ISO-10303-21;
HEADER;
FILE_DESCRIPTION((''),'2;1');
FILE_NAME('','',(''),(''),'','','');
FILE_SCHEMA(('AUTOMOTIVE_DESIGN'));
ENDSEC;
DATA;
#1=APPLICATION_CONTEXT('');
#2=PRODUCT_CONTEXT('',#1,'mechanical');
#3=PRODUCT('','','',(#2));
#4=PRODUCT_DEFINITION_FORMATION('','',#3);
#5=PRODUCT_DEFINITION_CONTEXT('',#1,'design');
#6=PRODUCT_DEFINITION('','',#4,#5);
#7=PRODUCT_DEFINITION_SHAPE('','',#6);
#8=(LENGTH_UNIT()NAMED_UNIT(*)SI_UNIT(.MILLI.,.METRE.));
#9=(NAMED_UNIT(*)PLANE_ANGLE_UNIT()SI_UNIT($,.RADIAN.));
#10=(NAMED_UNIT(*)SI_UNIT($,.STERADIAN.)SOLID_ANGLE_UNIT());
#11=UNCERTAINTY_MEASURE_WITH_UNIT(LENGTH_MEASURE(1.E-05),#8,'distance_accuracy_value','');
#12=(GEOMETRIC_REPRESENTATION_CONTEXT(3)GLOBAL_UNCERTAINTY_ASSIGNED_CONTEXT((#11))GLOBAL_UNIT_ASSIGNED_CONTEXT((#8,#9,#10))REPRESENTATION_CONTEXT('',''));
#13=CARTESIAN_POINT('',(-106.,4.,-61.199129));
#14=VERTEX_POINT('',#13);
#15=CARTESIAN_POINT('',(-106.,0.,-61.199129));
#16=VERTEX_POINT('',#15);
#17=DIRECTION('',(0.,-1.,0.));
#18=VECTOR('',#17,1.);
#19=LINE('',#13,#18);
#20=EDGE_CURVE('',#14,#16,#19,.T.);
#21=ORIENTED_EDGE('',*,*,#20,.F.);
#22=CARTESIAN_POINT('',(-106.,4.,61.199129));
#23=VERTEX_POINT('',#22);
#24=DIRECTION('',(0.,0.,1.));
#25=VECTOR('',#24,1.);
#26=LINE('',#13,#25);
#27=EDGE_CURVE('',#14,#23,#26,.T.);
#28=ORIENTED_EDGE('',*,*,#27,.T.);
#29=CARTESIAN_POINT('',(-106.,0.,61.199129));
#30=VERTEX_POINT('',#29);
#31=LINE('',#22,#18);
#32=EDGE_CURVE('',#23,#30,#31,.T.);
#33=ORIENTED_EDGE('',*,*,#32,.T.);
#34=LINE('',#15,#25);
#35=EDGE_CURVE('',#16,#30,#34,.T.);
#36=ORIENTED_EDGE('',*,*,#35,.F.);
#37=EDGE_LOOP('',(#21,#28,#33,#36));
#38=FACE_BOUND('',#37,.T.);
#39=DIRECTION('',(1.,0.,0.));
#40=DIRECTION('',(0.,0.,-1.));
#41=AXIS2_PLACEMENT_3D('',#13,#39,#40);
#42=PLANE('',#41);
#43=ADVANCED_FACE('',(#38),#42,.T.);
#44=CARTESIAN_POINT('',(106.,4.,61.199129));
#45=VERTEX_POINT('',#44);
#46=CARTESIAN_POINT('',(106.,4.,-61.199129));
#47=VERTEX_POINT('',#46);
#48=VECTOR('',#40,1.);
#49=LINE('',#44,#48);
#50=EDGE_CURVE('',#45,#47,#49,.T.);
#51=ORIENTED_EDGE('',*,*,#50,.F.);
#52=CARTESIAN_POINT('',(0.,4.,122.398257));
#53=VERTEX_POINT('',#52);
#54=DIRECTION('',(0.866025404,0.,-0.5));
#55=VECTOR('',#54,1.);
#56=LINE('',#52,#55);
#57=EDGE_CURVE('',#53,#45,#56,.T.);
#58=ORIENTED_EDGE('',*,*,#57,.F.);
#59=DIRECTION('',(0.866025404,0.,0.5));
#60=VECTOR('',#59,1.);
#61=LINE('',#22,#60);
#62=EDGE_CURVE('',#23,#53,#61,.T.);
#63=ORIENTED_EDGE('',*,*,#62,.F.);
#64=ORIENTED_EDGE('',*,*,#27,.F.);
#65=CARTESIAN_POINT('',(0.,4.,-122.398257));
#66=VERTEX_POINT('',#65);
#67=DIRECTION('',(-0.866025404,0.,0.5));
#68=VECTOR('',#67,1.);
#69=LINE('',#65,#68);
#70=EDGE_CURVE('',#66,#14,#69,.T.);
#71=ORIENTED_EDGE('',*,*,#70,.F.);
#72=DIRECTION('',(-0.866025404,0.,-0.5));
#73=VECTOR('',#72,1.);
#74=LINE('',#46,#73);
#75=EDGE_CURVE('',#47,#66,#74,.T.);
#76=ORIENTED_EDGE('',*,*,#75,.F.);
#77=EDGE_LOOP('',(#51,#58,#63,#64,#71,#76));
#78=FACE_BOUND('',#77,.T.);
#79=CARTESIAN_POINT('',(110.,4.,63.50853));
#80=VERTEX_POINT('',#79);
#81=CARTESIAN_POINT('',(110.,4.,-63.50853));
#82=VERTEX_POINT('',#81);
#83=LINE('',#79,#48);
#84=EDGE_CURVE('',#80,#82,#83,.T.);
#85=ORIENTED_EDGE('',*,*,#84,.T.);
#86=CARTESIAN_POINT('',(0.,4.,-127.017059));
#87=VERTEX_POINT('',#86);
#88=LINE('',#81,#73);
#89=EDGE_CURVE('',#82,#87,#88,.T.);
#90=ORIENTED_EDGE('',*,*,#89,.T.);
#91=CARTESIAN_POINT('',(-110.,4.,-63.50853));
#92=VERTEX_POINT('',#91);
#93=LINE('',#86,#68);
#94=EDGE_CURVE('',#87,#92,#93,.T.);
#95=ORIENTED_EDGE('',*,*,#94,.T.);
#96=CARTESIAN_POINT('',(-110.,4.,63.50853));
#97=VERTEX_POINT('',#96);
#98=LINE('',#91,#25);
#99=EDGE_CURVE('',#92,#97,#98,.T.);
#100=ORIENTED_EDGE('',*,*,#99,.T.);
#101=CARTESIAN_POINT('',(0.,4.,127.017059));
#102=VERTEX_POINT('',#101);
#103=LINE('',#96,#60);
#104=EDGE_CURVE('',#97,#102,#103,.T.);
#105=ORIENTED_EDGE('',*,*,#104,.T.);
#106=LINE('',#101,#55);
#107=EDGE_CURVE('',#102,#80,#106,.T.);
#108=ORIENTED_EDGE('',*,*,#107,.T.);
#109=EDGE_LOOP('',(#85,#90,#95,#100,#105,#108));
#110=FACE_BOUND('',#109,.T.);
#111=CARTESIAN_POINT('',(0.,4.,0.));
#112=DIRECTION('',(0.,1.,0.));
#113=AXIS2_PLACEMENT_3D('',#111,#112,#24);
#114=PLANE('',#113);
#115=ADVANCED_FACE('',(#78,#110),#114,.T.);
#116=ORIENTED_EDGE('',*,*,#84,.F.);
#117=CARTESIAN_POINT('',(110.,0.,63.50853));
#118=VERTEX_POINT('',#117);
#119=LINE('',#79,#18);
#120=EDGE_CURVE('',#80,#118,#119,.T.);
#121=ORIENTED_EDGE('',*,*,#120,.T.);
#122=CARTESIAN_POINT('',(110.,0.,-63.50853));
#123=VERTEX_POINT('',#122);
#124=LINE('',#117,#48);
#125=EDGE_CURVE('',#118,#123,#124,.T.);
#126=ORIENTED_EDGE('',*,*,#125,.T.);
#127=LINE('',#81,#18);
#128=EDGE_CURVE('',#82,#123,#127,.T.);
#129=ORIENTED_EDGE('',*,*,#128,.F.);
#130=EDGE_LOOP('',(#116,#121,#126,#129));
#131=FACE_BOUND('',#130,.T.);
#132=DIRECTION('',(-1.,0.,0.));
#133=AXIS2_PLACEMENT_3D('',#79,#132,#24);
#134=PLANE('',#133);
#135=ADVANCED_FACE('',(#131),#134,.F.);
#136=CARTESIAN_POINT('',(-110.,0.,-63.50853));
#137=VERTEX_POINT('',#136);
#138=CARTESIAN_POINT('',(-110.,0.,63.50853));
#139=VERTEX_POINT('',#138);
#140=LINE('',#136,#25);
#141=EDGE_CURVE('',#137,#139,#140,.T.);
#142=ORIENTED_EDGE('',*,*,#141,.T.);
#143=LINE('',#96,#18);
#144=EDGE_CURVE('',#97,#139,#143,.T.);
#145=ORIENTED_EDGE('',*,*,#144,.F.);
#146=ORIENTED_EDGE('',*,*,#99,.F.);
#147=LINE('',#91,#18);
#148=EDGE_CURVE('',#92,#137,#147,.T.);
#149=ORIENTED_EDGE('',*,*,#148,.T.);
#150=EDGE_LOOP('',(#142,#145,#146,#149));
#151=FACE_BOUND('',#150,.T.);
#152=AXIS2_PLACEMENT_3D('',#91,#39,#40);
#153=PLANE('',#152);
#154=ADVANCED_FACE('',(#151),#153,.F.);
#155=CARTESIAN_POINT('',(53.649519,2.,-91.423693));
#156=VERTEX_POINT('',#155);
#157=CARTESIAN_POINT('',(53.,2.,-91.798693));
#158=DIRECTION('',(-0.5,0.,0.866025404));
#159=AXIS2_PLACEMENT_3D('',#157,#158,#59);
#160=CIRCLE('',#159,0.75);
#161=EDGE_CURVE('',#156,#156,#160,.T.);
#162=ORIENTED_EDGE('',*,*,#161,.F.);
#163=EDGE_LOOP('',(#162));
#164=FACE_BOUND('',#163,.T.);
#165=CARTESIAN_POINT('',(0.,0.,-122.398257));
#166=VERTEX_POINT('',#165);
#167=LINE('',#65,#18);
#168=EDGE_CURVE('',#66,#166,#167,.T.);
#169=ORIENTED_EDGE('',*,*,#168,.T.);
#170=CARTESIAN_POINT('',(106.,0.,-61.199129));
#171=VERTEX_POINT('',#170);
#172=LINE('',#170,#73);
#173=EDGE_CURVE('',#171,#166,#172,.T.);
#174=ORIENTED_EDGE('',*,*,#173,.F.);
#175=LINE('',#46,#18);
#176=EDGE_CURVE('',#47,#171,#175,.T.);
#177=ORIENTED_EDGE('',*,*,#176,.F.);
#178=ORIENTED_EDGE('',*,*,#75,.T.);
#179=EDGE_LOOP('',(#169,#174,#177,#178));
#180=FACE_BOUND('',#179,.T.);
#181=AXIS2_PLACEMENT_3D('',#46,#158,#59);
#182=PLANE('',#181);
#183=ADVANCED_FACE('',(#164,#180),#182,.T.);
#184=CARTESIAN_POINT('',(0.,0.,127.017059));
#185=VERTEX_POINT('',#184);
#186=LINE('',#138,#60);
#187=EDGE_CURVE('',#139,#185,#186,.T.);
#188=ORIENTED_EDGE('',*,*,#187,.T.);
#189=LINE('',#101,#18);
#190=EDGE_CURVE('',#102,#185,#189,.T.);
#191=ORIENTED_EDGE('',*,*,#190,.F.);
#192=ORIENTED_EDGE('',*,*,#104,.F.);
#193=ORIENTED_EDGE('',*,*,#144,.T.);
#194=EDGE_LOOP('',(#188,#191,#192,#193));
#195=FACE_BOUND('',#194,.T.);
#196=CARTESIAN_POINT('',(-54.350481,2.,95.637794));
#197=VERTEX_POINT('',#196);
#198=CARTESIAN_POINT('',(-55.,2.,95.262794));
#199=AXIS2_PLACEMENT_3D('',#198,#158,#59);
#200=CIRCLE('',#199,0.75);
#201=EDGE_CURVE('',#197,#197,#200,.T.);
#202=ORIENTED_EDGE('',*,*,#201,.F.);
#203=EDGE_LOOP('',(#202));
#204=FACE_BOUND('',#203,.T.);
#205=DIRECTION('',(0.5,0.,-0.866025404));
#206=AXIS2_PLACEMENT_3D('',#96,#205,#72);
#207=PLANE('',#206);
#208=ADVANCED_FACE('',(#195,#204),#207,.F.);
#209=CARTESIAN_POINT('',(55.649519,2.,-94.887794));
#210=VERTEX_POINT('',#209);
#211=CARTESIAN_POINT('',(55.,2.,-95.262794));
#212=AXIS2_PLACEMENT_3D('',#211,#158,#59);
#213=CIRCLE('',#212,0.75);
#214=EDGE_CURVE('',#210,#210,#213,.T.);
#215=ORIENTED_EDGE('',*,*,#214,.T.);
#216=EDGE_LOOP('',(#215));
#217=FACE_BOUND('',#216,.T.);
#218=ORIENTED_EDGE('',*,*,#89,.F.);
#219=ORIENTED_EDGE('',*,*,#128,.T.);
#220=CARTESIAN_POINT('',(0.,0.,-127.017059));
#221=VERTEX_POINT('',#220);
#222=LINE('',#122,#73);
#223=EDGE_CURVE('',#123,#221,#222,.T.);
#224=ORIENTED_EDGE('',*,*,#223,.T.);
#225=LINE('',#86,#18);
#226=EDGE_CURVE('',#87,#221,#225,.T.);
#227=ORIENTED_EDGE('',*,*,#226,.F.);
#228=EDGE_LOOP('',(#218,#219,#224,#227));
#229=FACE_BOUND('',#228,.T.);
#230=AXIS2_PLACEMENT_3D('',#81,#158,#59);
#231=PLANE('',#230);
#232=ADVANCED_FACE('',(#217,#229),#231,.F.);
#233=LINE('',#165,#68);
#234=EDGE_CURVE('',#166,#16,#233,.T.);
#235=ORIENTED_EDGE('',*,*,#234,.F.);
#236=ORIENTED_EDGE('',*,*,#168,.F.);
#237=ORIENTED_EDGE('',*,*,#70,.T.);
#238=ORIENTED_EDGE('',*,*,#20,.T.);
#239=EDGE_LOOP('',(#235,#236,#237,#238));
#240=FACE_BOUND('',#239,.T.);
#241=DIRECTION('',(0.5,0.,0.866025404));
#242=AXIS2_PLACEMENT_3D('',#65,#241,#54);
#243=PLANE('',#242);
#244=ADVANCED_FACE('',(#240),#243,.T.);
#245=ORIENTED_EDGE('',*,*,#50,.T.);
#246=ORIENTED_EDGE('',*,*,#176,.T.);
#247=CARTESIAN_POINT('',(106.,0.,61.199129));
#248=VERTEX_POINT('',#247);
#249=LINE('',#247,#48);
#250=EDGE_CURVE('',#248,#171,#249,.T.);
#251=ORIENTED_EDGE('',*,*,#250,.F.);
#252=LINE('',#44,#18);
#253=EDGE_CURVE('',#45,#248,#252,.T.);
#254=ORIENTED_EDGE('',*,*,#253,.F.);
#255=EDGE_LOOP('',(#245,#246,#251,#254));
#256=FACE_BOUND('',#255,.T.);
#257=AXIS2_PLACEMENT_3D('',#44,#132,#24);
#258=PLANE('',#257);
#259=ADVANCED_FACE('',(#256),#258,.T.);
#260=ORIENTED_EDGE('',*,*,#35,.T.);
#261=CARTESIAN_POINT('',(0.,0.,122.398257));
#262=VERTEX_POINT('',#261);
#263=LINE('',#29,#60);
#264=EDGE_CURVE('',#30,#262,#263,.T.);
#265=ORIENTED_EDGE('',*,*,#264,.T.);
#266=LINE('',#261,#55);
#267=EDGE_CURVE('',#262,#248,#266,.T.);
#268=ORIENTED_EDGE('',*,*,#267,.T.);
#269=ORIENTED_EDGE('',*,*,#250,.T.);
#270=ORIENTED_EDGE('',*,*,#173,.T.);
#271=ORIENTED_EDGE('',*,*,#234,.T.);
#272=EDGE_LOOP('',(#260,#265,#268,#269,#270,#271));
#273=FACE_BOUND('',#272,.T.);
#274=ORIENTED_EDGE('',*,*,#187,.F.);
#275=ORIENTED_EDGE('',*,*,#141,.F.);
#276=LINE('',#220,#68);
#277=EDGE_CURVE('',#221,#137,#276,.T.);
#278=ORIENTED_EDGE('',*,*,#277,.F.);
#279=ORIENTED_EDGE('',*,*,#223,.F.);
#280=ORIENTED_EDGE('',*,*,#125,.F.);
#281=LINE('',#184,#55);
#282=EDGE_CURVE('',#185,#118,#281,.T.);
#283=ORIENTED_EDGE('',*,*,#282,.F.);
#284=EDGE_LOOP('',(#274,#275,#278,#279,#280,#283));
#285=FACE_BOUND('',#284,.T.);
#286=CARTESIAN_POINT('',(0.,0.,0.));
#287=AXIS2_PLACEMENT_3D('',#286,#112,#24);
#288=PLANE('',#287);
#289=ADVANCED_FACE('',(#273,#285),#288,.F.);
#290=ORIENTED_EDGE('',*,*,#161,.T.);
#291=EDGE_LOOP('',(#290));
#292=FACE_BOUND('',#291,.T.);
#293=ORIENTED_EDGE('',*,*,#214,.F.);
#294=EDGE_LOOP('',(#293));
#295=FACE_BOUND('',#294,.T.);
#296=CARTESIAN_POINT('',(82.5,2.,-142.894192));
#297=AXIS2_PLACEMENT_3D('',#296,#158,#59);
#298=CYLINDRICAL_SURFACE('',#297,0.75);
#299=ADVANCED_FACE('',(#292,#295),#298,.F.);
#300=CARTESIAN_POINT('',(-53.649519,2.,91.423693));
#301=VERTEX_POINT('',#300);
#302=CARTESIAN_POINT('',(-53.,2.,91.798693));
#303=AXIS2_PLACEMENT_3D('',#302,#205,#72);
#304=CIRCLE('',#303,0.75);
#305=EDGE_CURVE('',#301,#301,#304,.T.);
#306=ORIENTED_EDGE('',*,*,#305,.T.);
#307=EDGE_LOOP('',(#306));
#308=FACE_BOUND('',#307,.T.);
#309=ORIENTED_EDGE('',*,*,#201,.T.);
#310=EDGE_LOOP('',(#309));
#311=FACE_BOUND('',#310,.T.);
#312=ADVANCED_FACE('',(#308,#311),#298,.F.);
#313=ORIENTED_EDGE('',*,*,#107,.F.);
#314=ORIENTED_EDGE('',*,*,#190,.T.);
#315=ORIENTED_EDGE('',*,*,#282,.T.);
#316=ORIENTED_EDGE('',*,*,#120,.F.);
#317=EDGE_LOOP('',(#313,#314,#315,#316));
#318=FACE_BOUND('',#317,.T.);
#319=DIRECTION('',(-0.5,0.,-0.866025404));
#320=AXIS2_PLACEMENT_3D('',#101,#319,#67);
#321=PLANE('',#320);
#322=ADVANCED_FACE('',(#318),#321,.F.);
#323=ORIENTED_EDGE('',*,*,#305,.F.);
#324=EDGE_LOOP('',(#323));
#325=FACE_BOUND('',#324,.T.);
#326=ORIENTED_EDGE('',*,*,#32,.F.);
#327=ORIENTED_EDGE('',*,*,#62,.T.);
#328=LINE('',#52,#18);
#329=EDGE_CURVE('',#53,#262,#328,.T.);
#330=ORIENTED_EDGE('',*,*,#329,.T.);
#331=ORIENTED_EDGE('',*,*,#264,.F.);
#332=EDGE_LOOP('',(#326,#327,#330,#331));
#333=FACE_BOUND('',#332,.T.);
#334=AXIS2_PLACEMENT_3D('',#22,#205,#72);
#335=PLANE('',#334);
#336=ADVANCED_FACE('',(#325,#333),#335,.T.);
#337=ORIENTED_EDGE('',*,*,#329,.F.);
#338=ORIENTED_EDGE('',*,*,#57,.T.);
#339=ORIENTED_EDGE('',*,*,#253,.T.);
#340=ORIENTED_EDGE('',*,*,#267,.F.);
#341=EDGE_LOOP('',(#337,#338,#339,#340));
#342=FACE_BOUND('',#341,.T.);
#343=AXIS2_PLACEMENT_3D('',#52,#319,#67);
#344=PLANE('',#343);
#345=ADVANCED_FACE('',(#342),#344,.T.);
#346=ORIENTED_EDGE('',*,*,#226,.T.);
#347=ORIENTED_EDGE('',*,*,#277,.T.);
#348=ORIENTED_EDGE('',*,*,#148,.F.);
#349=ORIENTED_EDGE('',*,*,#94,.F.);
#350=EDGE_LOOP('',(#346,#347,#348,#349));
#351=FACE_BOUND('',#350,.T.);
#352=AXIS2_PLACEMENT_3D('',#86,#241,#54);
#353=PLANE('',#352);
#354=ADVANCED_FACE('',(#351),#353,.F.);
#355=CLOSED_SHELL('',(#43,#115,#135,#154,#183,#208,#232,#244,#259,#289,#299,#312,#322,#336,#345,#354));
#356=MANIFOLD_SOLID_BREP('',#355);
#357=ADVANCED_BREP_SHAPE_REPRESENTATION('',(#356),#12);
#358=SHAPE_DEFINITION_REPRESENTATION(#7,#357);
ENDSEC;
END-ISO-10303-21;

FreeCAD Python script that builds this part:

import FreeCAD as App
import Part
import Sketcher
from FreeCAD import Vector
Q = App.Units.Quantity

doc = App.newDocument("Part")
body = doc.addObject("PartDesign::Body", "Body")

# Sketch on XZ plane
sketch1 = body.newObject("Sketcher::SketchObject", "Sketch")
sketch1.AttachmentSupport = (doc.getObject("XZ_Plane"), [""])
sketch1.MapMode = "FlatFace"
sketch1.addGeometry([
    Part.LineSegment(Vector(110, 64, 0), Vector(110, -64, 0)),  # 0
    Part.LineSegment(Vector(110, -64, 0), Vector(0, -127, 0)),  # 1
    Part.LineSegment(Vector(0, -127, 0), Vector(-110, -64, 0)),  # 2
    Part.LineSegment(Vector(-110, -64, 0), Vector(-110, 64, 0)),  # 3
    Part.LineSegment(Vector(-110, 64, 0), Vector(0, 127, 0)),  # 4
    Part.LineSegment(Vector(0, 127, 0), Vector(110, 64, 0)),  # 5
    Part.LineSegment(Vector(0, -122, 0), Vector(106, -61, 0)),  # 6
    Part.LineSegment(Vector(106, -61, 0), Vector(106, 61, 0)),  # 7
    Part.LineSegment(Vector(106, 61, 0), Vector(0, 122, 0)),  # 8
    Part.LineSegment(Vector(0, 122, 0), Vector(-106, 61, 0)),  # 9
    Part.LineSegment(Vector(-106, 61, 0), Vector(-106, -61, 0)),  # 10
    Part.LineSegment(Vector(-106, -61, 0), Vector(0, -122, 0)),  # 11
], False)
sketch1.addConstraint([
    Sketcher.Constraint("Coincident", 0, 2, 1, 1),
    Sketcher.Constraint("Coincident", 1, 2, 2, 1),
    Sketcher.Constraint("Coincident", 2, 2, 3, 1),
    Sketcher.Constraint("Coincident", 3, 2, 4, 1),
    Sketcher.Constraint("Coincident", 4, 2, 5, 1),
    Sketcher.Constraint("Coincident", 5, 2, 0, 1),
    Sketcher.Constraint("Coincident", 6, 2, 7, 1),
    Sketcher.Constraint("Coincident", 7, 2, 8, 1),
    Sketcher.Constraint("Coincident", 8, 2, 9, 1),
    Sketcher.Constraint("Coincident", 9, 2, 10, 1),
    Sketcher.Constraint("Coincident", 10, 2, 11, 1),
    Sketcher.Constraint("Coincident", 11, 2, 6, 1),
    Sketcher.Constraint("Vertical", 0),
    Sketcher.Constraint("Vertical", 3),
    Sketcher.Constraint("Vertical", 7),
    Sketcher.Constraint("Vertical", 10),
    Sketcher.Constraint("Symmetric", 0, 2, 3, 2, -1, 1),
    Sketcher.Constraint("Symmetric", 1, 2, 4, 2, -1, 1),
    Sketcher.Constraint("Symmetric", 6, 2, 9, 2, -1, 1),
    Sketcher.Constraint("Symmetric", 8, 2, 11, 2, -1, 1),
    Sketcher.Constraint("PointOnObject", 1, 2, -2),
    Sketcher.Constraint("PointOnObject", 8, 2, -2),
    Sketcher.Constraint("Parallel", 2, 5),
    Sketcher.Constraint("Parallel", 4, 6),
    Sketcher.Constraint("Parallel", 5, 8),
    Sketcher.Constraint("Parallel", 8, 11),
    Sketcher.Constraint("Horizontal", 0, 2, 2, 2),
    Sketcher.Constraint("Angle", 1, Q("-150 deg")),
    Sketcher.Constraint("DistanceX", -1, 1, 0, 2, 110.0),
    Sketcher.Constraint("DistanceX", -1, 1, 6, 2, 106.0),
    Sketcher.Constraint("DistanceY", 0, 2, 0, 1, 127.017059),
    Sketcher.Constraint("DistanceY", 0, 2, 6, 2, 2.309401),
])
pad1 = body.newObject("PartDesign::Pad", "Pad")
pad1.Profile = sketch1
pad1.Length = 4
pad1.Reversed = True

# Sketch on an angled plane
sketch2 = body.newObject("Sketcher::SketchObject", "Sketch001")
sketch2.Placement = App.Placement(Vector(-55, 0, 95.262794), App.Rotation(Vector(0.866025404, 0, 0.5), Vector(0, 1, 0), Vector(-0.5, 0, 0.866025404), "ZXY"))
sketch2.addGeometry(Part.Circle(Vector(0, 2, 0), Vector(0, 0, 1), 0.8), False)
sketch2.addConstraint([
    Sketcher.Constraint("PointOnObject", 0, 3, -2),
    Sketcher.Constraint("Diameter", 0, 1.5),
    Sketcher.Constraint("DistanceY", -1, 1, 0, 3, 2.0),
])
pocket1 = body.newObject("PartDesign::Pocket", "Pocket")
pocket1.Profile = sketch2
pocket1.Type = "ThroughAll"

doc.recompute()
